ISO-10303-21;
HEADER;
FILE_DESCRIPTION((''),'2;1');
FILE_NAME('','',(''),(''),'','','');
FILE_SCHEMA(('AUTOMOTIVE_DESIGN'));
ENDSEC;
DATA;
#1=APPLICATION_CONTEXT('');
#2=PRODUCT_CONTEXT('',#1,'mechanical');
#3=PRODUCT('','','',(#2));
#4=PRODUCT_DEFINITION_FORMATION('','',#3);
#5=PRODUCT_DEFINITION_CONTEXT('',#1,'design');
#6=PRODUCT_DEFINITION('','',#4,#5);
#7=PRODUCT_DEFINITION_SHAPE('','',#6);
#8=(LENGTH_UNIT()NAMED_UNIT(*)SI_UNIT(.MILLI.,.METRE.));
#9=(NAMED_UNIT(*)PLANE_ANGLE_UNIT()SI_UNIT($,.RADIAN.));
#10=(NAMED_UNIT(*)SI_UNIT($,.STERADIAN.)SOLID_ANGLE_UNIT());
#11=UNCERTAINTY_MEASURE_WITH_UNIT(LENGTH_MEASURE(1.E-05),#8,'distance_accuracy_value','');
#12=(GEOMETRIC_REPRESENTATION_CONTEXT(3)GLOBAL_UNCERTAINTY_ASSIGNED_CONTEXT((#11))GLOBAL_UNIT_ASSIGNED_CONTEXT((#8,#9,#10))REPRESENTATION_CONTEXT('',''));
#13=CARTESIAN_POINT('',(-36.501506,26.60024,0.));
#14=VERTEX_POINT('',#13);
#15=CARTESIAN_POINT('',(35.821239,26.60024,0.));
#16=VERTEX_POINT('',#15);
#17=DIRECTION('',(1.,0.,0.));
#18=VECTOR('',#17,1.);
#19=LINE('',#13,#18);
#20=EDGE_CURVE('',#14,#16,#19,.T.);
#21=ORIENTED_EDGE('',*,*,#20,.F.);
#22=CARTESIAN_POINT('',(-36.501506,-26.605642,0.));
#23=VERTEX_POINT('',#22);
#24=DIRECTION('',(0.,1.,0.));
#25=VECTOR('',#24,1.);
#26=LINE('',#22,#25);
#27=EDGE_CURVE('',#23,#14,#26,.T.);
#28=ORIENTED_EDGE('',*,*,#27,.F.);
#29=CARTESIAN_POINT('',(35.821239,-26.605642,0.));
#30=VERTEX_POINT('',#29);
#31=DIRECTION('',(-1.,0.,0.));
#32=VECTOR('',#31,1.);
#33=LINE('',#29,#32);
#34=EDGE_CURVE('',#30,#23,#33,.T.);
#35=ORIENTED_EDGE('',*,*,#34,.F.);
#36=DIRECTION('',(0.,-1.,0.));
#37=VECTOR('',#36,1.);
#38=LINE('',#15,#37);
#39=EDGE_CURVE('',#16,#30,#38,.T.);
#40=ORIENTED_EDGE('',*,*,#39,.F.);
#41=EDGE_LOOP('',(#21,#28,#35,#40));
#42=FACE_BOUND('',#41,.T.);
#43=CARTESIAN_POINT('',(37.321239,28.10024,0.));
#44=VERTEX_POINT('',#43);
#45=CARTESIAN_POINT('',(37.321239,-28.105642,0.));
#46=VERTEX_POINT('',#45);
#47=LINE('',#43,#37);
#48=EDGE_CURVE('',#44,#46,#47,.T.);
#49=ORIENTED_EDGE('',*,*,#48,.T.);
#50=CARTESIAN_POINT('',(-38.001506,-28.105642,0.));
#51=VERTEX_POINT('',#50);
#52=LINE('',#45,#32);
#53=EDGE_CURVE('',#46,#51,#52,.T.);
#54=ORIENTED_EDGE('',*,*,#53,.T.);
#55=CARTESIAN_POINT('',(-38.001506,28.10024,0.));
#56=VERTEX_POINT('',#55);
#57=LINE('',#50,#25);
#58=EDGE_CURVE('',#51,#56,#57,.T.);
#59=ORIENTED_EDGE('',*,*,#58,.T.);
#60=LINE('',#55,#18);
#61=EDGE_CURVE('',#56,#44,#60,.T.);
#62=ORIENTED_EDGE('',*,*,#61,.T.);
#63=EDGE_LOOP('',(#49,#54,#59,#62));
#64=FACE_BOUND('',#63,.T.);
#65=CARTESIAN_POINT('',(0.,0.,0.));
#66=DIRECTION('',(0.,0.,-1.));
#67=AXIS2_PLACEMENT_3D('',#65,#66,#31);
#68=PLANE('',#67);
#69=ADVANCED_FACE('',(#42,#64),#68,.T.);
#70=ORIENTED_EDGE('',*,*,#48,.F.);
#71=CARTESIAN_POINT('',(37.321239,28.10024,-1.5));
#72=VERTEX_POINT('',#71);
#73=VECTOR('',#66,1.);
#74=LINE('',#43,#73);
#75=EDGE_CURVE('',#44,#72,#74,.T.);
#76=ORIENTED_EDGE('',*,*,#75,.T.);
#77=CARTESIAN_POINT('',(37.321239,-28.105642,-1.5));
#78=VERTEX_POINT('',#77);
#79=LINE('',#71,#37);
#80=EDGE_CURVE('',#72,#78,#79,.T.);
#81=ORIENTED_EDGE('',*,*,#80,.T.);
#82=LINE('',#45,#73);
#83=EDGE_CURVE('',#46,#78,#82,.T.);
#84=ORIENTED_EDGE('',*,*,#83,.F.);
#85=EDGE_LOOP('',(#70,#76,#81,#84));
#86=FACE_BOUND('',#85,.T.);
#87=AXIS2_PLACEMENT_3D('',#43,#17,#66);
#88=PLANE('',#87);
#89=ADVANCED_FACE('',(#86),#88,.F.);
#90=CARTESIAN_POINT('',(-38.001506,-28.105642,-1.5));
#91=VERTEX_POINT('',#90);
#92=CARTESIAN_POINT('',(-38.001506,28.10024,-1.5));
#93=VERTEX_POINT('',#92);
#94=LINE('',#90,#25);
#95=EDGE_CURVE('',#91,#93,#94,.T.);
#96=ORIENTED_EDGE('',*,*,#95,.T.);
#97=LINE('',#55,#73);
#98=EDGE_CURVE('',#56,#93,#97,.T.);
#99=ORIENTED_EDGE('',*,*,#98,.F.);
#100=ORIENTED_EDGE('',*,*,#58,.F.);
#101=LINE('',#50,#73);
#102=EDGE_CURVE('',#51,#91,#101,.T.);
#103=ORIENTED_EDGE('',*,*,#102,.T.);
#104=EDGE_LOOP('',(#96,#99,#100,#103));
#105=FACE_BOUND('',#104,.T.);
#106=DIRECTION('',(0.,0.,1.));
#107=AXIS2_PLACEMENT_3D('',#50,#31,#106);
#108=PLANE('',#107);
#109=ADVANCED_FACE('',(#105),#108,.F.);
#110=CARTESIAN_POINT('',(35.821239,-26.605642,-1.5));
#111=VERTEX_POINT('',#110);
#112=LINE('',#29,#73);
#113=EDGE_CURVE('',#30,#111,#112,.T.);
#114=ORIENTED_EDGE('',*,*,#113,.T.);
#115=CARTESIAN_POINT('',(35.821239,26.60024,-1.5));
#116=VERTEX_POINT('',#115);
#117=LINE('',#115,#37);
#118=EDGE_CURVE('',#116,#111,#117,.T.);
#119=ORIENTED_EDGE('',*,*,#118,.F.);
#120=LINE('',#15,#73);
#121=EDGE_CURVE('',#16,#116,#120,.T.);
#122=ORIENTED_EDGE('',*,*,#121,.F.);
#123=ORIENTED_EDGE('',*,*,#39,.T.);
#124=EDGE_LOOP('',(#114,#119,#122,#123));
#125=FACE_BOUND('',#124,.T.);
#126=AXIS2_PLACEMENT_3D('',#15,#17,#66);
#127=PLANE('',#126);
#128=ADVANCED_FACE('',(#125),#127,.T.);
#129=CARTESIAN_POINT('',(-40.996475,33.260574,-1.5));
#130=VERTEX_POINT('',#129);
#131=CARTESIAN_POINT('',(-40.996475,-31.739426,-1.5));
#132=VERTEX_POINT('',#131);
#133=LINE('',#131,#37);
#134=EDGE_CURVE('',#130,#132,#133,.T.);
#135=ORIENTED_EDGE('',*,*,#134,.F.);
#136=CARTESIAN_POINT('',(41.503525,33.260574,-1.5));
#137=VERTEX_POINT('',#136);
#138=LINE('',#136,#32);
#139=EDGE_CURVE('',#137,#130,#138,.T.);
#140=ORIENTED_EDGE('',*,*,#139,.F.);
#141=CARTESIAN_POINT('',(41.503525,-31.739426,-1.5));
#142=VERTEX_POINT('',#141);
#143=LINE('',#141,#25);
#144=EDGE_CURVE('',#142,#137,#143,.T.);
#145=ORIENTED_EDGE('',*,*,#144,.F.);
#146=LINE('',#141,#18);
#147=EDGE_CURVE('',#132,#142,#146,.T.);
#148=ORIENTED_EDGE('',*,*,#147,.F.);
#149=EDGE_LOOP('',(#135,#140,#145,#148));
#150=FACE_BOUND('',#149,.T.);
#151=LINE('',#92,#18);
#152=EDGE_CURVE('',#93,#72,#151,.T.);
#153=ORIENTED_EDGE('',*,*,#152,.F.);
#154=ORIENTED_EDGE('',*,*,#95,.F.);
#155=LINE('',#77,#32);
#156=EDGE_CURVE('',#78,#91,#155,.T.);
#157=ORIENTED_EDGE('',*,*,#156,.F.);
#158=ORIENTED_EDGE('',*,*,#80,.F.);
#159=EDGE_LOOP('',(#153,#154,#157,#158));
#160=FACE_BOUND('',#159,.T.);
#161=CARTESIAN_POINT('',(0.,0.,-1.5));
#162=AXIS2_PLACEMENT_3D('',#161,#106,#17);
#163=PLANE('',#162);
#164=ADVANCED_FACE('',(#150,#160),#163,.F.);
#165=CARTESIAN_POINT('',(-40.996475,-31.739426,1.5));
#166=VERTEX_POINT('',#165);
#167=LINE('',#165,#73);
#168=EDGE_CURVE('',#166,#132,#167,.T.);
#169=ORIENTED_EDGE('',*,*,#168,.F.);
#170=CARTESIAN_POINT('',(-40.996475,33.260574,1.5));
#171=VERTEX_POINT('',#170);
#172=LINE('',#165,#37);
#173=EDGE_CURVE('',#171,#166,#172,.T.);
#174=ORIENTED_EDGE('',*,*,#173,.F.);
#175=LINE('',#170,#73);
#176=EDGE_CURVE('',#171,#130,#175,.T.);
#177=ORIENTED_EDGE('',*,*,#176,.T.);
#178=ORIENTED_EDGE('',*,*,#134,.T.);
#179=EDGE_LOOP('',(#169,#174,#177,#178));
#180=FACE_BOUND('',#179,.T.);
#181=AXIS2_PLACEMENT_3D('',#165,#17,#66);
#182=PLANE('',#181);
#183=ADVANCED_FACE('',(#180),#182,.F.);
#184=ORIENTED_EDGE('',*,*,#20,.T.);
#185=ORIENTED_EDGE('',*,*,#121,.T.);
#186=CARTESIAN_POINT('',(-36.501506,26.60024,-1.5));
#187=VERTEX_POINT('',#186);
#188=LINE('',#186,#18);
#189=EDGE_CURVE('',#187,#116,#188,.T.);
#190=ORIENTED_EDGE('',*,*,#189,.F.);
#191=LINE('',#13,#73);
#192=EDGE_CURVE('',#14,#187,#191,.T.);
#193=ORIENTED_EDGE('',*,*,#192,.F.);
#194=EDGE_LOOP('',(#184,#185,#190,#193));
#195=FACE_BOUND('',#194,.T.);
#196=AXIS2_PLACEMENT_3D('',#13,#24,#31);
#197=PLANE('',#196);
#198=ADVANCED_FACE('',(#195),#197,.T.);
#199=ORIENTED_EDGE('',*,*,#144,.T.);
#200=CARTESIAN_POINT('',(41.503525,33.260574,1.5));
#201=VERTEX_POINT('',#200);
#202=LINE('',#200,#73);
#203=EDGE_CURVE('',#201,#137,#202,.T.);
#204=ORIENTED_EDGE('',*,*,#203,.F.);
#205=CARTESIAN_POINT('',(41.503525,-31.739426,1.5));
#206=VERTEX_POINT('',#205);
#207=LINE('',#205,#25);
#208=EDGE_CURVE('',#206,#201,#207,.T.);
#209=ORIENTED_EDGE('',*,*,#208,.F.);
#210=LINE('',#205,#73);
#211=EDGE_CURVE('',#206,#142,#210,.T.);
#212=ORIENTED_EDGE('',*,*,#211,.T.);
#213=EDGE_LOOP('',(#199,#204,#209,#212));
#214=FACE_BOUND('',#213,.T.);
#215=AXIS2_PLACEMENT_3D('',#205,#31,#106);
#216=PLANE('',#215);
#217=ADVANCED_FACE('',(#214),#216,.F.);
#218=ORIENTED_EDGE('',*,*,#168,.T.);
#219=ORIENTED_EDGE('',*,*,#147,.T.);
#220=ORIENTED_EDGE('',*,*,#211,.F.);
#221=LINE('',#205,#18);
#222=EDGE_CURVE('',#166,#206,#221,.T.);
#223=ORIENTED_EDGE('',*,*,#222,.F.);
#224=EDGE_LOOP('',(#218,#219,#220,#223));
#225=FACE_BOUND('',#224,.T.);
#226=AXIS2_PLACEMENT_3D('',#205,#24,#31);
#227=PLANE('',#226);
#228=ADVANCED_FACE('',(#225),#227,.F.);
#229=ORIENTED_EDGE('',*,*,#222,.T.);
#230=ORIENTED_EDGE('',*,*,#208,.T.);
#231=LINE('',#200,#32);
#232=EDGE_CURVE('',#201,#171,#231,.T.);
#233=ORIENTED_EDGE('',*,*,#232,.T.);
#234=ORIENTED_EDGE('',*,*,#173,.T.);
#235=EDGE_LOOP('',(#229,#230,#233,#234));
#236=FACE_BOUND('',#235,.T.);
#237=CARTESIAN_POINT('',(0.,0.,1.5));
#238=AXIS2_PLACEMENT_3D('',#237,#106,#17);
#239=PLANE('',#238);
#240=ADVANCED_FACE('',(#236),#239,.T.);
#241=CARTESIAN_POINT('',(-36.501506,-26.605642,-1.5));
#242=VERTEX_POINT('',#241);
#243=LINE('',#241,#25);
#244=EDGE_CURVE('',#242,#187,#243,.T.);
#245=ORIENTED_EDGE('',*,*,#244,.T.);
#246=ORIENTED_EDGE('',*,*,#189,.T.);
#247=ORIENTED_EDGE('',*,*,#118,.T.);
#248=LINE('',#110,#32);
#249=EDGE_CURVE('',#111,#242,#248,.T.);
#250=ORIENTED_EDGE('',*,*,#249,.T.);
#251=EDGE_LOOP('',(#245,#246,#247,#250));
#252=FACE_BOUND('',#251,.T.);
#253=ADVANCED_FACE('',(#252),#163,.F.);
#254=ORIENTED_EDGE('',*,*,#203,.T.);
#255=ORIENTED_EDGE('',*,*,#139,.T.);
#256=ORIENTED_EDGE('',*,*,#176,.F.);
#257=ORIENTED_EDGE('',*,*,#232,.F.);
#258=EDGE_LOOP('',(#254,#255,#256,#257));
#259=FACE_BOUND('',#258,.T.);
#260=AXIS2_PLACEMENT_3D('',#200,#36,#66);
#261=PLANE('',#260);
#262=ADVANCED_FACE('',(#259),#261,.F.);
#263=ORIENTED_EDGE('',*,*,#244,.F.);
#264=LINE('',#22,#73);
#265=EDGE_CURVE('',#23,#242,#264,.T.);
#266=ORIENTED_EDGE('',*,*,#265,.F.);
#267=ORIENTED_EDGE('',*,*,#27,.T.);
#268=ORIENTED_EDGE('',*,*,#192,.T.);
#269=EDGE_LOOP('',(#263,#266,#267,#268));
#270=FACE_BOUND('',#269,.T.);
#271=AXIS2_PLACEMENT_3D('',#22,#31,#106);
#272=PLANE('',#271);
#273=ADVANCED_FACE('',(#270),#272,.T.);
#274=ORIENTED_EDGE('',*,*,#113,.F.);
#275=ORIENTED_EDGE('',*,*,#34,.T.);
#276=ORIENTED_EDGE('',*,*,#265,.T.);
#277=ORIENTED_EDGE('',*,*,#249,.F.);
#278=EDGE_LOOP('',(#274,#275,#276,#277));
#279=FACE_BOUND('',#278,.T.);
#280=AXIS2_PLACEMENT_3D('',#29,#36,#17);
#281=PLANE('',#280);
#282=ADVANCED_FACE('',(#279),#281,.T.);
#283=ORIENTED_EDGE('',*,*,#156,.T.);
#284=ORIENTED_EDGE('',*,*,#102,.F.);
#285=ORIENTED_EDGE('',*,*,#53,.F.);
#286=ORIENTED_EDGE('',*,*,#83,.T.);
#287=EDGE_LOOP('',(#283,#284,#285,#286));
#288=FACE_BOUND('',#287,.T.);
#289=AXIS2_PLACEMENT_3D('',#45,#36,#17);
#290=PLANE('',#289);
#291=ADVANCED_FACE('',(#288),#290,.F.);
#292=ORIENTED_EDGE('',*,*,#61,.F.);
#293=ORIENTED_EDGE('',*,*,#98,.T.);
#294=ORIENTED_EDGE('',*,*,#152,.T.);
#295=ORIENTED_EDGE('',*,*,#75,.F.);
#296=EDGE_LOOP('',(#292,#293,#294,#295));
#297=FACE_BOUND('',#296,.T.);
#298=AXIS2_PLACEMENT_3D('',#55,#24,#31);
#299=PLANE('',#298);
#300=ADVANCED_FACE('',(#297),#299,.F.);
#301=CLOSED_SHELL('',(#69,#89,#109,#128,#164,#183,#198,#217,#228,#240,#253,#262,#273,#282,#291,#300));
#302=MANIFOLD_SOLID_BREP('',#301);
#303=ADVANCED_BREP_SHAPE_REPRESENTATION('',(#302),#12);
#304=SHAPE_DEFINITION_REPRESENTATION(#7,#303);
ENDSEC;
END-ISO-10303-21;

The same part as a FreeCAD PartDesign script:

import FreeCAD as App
import Part
import Sketcher

doc = App.newDocument("Part")
body = doc.addObject("PartDesign::Body", "Body")

# Sketch on XY plane
sketch1 = body.newObject("Sketcher::SketchObject", "Sketch")
sketch1.AttachmentSupport = (doc.getObject("XY_Plane"), [""])
sketch1.MapMode = "FlatFace"
sketch1.addGeometry([
    Part.LineSegment(App.Vector(-41, 33, 0), App.Vector(-41, -32, 0)),
    Part.LineSegment(App.Vector(-41, -32, 0), App.Vector(42, -32, 0)),
    Part.LineSegment(App.Vector(42, -32, 0), App.Vector(42, 33, 0)),
    Part.LineSegment(App.Vector(42, 33, 0), App.Vector(-41, 33, 0)),
], False)
sketch1.addConstraint([
    Sketcher.Constraint("Coincident", 0, 2, 1, 1),
    Sketcher.Constraint("Coincident", 1, 2, 2, 1),
    Sketcher.Constraint("Coincident", 2, 2, 3, 1),
    Sketcher.Constraint("Coincident", 3, 2, 0, 1),
    Sketcher.Constraint("Vertical", 0),
    Sketcher.Constraint("Horizontal", 1),
    Sketcher.Constraint("Vertical", 2),
    Sketcher.Constraint("Horizontal", 3),
    Sketcher.Constraint("DistanceY", 0, 2, 0, 1, 65.0),
    Sketcher.Constraint("DistanceX", 1, 1, 1, 2, 82.5),
    Sketcher.Constraint("DistanceX", 0, 2, -1, 1, 40.996475),
    Sketcher.Constraint("DistanceY", 0, 2, -1, 1, 31.739426),
])
pad1 = body.newObject("PartDesign::Pad", "Pad")
pad1.Profile = sketch1
pad1.Length = 3
pad1.Midplane = True

# Sketch on XY plane
sketch2 = body.newObject("Sketcher::SketchObject", "Sketch001")
sketch2.AttachmentSupport = (doc.getObject("XY_Plane"), [""])
sketch2.MapMode = "FlatFace"
sketch2.AttachmentOffset = App.Placement(App.Vector(0, 0, -1.5), App.Rotation())
sketch2.addGeometry([
    Part.LineSegment(App.Vector(37, 28, 0), App.Vector(37, -28, 0)),  # 0
    Part.LineSegment(App.Vector(37, -28, 0), App.Vector(-38, -28, 0)),  # 1
    Part.LineSegment(App.Vector(-38, -28, 0), App.Vector(-38, 28, 0)),  # 2
    Part.LineSegment(App.Vector(-38, 28, 0), App.Vector(37, 28, 0)),  # 3
    Part.LineSegment(App.Vector(-37, -27, 0), App.Vector(36, -27, 0)),  # 4
    Part.LineSegment(App.Vector(36, -27, 0), App.Vector(36, 27, 0)),  # 5
    Part.LineSegment(App.Vector(36, 27, 0), App.Vector(-37, 27, 0)),  # 6
    Part.LineSegment(App.Vector(-37, 27, 0), App.Vector(-37, -27, 0)),  # 7
], False)
sketch2.addConstraint([
    Sketcher.Constraint("Coincident", 0, 2, 1, 1),
    Sketcher.Constraint("Coincident", 1, 2, 2, 1),
    Sketcher.Constraint("Coincident", 2, 2, 3, 1),
    Sketcher.Constraint("Coincident", 3, 2, 0, 1),
    Sketcher.Constraint("Coincident", 4, 2, 5, 1),
    Sketcher.Constraint("Coincident", 5, 2, 6, 1),
    Sketcher.Constraint("Coincident", 6, 2, 7, 1),
    Sketcher.Constraint("Coincident", 7, 2, 4, 1),
    Sketcher.Constraint("Vertical", 0),
    Sketcher.Constraint("Horizontal", 1),
    Sketcher.Constraint("Vertical", 2),
    Sketcher.Constraint("Horizontal", 3),
    Sketcher.Constraint("Horizontal", 4),
    Sketcher.Constraint("Vertical", 5),
    Sketcher.Constraint("Horizontal", 6),
    Sketcher.Constraint("Vertical", 7),
    Sketcher.Constraint("DistanceX", 4, 2, 0, 2, 1.5),
    Sketcher.Constraint("DistanceY", 0, 2, 4, 2, 1.5),
    Sketcher.Constraint("DistanceY", 5, 2, 3, 2, 1.5),
    Sketcher.Constraint("DistanceX", 2, 2, 6, 2, 1.5),
    Sketcher.Constraint("DistanceY", 0, 2, 0, 1, 56.205882),
    Sketcher.Constraint("DistanceX", 1, 2, 1, 1, 75.322744),
    Sketcher.Constraint("DistanceX", -1, 1, 0, 2, 37.321239),
    Sketcher.Constraint("DistanceY", 0, 2, -1, 1, 28.105642),
])
pocket1 = body.newObject("PartDesign::Pocket", "Pocket")
pocket1.Profile = sketch2
pocket1.Length = 1.5
pocket1.Reversed = True

doc.recompute()
